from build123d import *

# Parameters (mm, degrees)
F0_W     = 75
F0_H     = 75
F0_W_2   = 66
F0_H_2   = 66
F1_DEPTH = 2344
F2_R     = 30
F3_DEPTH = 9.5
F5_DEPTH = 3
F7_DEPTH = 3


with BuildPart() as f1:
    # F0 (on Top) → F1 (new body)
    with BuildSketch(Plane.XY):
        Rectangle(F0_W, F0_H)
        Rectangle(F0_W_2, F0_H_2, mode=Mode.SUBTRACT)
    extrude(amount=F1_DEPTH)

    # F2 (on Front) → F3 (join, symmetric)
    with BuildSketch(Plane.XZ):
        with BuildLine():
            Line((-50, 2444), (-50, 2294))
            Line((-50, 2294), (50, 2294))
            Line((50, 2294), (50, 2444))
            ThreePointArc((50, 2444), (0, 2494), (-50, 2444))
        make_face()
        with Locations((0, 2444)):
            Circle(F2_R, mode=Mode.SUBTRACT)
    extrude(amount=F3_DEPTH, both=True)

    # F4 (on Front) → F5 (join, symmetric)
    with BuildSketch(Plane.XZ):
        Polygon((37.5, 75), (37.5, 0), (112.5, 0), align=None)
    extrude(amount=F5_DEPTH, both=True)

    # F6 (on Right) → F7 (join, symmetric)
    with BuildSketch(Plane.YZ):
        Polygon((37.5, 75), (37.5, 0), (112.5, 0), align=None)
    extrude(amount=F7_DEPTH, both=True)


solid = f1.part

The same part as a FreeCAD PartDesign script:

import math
import FreeCAD as App
import Part
import Sketcher
from FreeCAD import Vector
Q = App.Units.Quantity

doc = App.newDocument("Part")
body = doc.addObject("PartDesign::Body", "Body")

sketch1 = doc.addObject("Sketcher::SketchObject", "Sketch")
body.addObject(sketch1)
sketch1.AttachmentSupport = (doc.XY_Plane, [""])
sketch1.MapMode = "FlatFace"
sketch1.addGeometry([
    Part.LineSegment(Vector(-37.5, 37.5, 0), Vector(-37.5, -37.5, 0)),
    Part.LineSegment(Vector(-37.5, -37.5, 0), Vector(37.5, -37.5, 0)),
    Part.LineSegment(Vector(37.5, -37.5, 0), Vector(37.5, 37.5, 0)),
    Part.LineSegment(Vector(37.5, 37.5, 0), Vector(-37.5, 37.5, 0)),
    Part.LineSegment(Vector(33, -33, 0), Vector(-33, -33, 0)),
    Part.LineSegment(Vector(-33, -33, 0), Vector(-33, 33, 0)),
    Part.LineSegment(Vector(-33, 33, 0), Vector(33, 33, 0)),
    Part.LineSegment(Vector(33, 33, 0), Vector(33, -33, 0)),
], False)
sketch1.addConstraint([
    Sketcher.Constraint("Coincident", 0, 2, 1, 1),
    Sketcher.Constraint("Coincident", 1, 2, 2, 1),
    Sketcher.Constraint("Coincident", 2, 2, 3, 1),
    Sketcher.Constraint("Coincident", 3, 2, 0, 1),
    Sketcher.Constraint("Coincident", 4, 2, 5, 1),
    Sketcher.Constraint("Coincident", 5, 2, 6, 1),
    Sketcher.Constraint("Coincident", 6, 2, 7, 1),
    Sketcher.Constraint("Coincident", 7, 2, 4, 1),
    Sketcher.Constraint("Vertical", 0),
    Sketcher.Constraint("Horizontal", 1),
    Sketcher.Constraint("Vertical", 2),
    Sketcher.Constraint("Horizontal", 3),
    Sketcher.Constraint("Horizontal", 4),
    Sketcher.Constraint("Vertical", 5),
    Sketcher.Constraint("Horizontal", 6),
    Sketcher.Constraint("Vertical", 7),
    Sketcher.Constraint("Symmetric", 0, 2, 2, 2, -1, 1),
    Sketcher.Constraint("Symmetric", 4, 2, 6, 2, -1, 1),
    Sketcher.Constraint("Equal", 3, 0),
    Sketcher.Constraint("Equal", 6, 5),
    Sketcher.Constraint("DistanceX", 1, 1, 1, 2, Q("75 mm")),
    Sketcher.Constraint("DistanceX", 4, 2, 4, 1, Q("66 mm")),
])
pad1 = doc.addObject("PartDesign::Pad", "Pad")
body.addObject(pad1)
pad1.Profile = sketch1
pad1.Length = 2344

sketch2 = doc.addObject("Sketcher::SketchObject", "Sketch001")
body.addObject(sketch2)
sketch2.AttachmentSupport = (doc.XZ_Plane, [""])
sketch2.MapMode = "FlatFace"
sketch2.addGeometry([
    Part.LineSegment(Vector(-50, 2444, 0), Vector(-50, 2294, 0)),
    Part.LineSegment(Vector(-50, 2294, 0), Vector(50, 2294, 0)),
    Part.LineSegment(Vector(50, 2294, 0), Vector(50, 2444, 0)),
    Part.ArcOfCircle(Part.Circle(Vector(0, 2444, 0), Vector(0, 0, 1), 50), math.radians(0), math.radians(180)),
    Part.Circle(Vector(0, 2444, 0), Vector(0, 0, 1), 30),
], False)
sketch2.addConstraint([
    Sketcher.Constraint("Coincident", 0, 2, 1, 1),
    Sketcher.Constraint("Coincident", 1, 2, 2, 1),
    Sketcher.Constraint("Tangent", 2, 2, 3, 1),
    Sketcher.Constraint("Tangent", 3, 2, 0, 1),
    Sketcher.Constraint("Vertical", 0),
    Sketcher.Constraint("Horizontal", 1),
    Sketcher.Constraint("Vertical", 2),
    Sketcher.Constraint("Coincident", 4, 3, 3, 3),
    Sketcher.Constraint("PointOnObject", 3, 3, -2),
    Sketcher.Constraint("Diameter", 4, Q("60 mm")),
    Sketcher.Constraint("Radius", 3, Q("50 mm")),
    Sketcher.Constraint("DistanceY", 0, 2, 0, 1, Q("150 mm")),
    Sketcher.Constraint("DistanceY", -1, 1, 3, 3, Q("2444 mm")),
])
pad2 = doc.addObject("PartDesign::Pad", "Pad001")
body.addObject(pad2)
pad2.Profile = sketch2
pad2.Length = 19
pad2.Midplane = True

sketch3 = doc.addObject("Sketcher::SketchObject", "Sketch002")
body.addObject(sketch3)
sketch3.AttachmentSupport = (doc.XZ_Plane, [""])
sketch3.MapMode = "FlatFace"
sketch3.addGeometry([
    Part.LineSegment(Vector(37.5, 75, 0), Vector(37.5, 0, 0)),
    Part.LineSegment(Vector(37.5, 0, 0), Vector(112.5, 0, 0)),
    Part.LineSegment(Vector(112.5, 0, 0), Vector(37.5, 75, 0)),
], False)
sketch3.addConstraint([
    Sketcher.Constraint("Coincident", 0, 2, 1, 1),
    Sketcher.Constraint("Coincident", 1, 2, 2, 1),
    Sketcher.Constraint("Coincident", 2, 2, 0, 1),
    Sketcher.Constraint("Vertical", 0),
    Sketcher.Constraint("Horizontal", 1),
    Sketcher.Constraint("PointOnObject", 0, 2, -1),
    Sketcher.Constraint("Equal", 1, 0),
    Sketcher.Constraint("DistanceX", 1, 1, 1, 2, Q("75 mm")),
    Sketcher.Constraint("DistanceX", -1, 1, 0, 2, Q("37.5 mm")),
])
pad3 = doc.addObject("PartDesign::Pad", "Pad002")
body.addObject(pad3)
pad3.Profile = sketch3
pad3.Length = 6
pad3.Midplane = True

sketch4 = doc.addObject("Sketcher::SketchObject", "Sketch003")
body.addObject(sketch4)
sketch4.AttachmentSupport = (doc.YZ_Plane, [""])
sketch4.MapMode = "FlatFace"
sketch4.addGeometry([
    Part.LineSegment(Vector(37.5, 75, 0), Vector(37.5, 0, 0)),
    Part.LineSegment(Vector(37.5, 0, 0), Vector(112.5, 0, 0)),
    Part.LineSegment(Vector(112.5, 0, 0), Vector(37.5, 75, 0)),
], False)
sketch4.addConstraint([
    Sketcher.Constraint("Coincident", 0, 2, 1, 1),
    Sketcher.Constraint("Coincident", 1, 2, 2, 1),
    Sketcher.Constraint("Coincident", 2, 2, 0, 1),
    Sketcher.Constraint("Vertical", 0),
    Sketcher.Constraint("Horizontal", 1),
    Sketcher.Constraint("PointOnObject", 0, 2, -1),
    Sketcher.Constraint("Equal", 1, 0),
    Sketcher.Constraint("DistanceX", 1, 1, 1, 2, Q("75 mm")),
    Sketcher.Constraint("DistanceX", -1, 1, 0, 2, Q("37.5 mm")),
])
pad4 = doc.addObject("PartDesign::Pad", "Pad003")
body.addObject(pad4)
pad4.Profile = sketch4
pad4.Length = 6
pad4.Midplane = True

doc.recompute()
